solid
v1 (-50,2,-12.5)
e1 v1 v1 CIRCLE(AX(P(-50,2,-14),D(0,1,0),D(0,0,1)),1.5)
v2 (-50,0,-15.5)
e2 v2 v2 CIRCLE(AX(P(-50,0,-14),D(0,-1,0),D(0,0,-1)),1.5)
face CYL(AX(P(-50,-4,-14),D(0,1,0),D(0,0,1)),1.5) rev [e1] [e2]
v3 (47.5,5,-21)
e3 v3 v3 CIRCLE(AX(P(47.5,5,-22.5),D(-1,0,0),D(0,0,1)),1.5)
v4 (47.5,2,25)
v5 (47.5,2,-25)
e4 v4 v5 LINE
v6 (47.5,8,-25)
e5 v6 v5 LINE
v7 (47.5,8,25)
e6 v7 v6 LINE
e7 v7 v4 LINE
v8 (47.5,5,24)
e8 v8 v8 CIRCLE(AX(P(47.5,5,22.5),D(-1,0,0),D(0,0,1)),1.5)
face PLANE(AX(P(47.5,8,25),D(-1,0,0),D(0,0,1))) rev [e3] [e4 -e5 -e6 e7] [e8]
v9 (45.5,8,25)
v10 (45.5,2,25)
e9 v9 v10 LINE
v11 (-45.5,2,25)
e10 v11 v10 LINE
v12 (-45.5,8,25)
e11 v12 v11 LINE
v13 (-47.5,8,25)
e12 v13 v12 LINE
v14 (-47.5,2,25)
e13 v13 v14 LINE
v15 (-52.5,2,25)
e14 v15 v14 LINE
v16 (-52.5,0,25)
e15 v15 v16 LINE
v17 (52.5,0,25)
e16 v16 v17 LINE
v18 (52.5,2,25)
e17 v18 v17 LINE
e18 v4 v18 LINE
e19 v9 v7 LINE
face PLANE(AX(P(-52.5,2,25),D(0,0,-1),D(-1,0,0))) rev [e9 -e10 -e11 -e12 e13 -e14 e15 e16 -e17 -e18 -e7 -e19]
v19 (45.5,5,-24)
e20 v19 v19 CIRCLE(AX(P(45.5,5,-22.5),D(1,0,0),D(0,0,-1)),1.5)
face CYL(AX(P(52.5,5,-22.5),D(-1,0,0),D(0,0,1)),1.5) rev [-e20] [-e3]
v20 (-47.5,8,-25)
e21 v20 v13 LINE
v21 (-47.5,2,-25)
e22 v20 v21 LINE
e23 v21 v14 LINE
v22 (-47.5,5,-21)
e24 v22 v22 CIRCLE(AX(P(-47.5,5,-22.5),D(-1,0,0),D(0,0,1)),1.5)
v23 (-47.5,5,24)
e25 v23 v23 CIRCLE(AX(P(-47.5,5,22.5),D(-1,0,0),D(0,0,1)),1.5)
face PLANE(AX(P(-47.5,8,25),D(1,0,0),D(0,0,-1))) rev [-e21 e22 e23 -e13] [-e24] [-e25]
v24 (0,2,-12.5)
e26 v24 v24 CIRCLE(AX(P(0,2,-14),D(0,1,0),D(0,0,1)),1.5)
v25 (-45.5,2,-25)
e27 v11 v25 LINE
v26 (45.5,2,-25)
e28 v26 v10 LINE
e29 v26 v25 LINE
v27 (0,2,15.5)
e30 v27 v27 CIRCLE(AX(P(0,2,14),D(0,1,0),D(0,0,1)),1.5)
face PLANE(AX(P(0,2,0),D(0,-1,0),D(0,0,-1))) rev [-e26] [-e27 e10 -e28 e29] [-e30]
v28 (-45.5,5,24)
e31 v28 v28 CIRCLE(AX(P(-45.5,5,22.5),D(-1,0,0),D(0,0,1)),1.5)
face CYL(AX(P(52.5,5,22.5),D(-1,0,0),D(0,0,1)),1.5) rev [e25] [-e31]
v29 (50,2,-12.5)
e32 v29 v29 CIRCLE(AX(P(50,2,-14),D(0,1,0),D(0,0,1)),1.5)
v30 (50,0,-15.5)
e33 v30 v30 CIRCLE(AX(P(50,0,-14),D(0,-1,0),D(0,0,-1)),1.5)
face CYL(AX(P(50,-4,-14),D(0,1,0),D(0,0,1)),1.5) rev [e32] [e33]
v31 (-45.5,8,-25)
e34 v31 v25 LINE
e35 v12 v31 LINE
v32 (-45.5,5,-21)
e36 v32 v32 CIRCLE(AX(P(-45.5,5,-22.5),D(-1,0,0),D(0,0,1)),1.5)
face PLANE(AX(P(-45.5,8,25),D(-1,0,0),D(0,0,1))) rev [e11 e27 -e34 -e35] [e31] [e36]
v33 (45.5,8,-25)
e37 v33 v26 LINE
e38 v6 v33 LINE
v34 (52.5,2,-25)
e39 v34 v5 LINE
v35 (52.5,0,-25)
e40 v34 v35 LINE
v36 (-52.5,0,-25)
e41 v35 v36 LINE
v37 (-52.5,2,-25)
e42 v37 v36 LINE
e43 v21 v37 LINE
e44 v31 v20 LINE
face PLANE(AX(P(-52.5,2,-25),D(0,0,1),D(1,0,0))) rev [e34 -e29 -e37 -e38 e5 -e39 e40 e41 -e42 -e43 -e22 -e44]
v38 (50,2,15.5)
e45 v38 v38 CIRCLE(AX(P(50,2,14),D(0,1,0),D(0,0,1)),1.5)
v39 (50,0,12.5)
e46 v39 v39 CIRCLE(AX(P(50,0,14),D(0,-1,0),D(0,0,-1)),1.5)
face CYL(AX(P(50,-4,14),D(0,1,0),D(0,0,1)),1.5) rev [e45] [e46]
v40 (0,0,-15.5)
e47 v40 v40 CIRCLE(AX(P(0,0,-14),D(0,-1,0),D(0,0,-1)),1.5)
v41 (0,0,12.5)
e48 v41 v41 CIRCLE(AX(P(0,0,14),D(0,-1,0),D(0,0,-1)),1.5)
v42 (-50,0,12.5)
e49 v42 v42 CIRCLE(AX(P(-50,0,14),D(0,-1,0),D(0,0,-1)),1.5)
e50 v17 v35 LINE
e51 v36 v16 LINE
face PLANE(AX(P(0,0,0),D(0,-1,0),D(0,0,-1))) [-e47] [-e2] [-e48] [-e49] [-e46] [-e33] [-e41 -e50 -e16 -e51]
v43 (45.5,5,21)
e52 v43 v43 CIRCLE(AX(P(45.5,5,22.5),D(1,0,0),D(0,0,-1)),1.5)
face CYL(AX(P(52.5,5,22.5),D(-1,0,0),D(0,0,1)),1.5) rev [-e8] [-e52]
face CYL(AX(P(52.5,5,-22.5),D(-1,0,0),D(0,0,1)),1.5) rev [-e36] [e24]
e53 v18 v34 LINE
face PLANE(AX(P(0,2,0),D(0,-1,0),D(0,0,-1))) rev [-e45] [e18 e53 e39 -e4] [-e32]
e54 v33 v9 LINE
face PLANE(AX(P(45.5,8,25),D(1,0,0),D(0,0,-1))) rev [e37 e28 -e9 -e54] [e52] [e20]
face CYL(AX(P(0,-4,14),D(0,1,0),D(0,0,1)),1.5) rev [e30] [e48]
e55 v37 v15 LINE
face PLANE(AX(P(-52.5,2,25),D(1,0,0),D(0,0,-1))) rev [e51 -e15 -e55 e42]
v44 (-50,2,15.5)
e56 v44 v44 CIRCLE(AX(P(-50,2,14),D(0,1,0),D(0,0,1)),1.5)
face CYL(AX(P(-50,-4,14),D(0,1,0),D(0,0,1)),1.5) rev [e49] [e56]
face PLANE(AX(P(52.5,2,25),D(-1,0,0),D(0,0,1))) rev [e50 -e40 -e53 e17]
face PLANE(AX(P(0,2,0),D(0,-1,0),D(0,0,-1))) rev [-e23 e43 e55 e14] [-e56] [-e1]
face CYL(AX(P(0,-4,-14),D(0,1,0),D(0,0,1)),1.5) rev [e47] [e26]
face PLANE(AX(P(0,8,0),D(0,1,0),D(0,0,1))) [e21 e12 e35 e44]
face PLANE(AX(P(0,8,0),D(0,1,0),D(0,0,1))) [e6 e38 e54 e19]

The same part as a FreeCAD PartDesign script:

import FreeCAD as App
import Part
import Sketcher
Q = App.Units.Quantity


def add_polygon(sketch, points):
    """Adds a closed chain of lines whose ends are joined by coincident constraints."""
    first, n = sketch.GeometryCount, len(points)
    for a, b in zip(points, points[1:] + points[:1]):
        sketch.addGeometry(Part.LineSegment(App.Vector(*a, 0), App.Vector(*b, 0)), False)
    for i in range(n):
        sketch.addConstraint(Sketcher.Constraint("Coincident", first + i, 2, first + (i + 1) % n, 1))

doc = App.newDocument("Part")
params = doc.addObject("Spreadsheet::Sheet", "Params")
for row, (alias, value) in enumerate([
    ("sketch1_width", "105 mm"),
    ("sketch1_height", "50 mm"),
    ("pad1_length", "2 mm"),
    ("sketch2_width", "2 mm"),
    ("sketch2_height", "50 mm"),
    ("pad2_length", "6 mm"),
    ("sketch3_diameter", "3 mm"),
    ("pocket1_length", "6 mm"),
    ("sketch4_diameter", "3 mm"),
    ("pocket2_length", "100 mm"),
], start=1):
    params.set(f"A{row}", alias)
    params.set(f"B{row}", "=" + value)
    params.setAlias(f"B{row}", alias)

body = doc.addObject("PartDesign::Body", "Body")

sketch1 = body.newObject("Sketcher::SketchObject", "Sketch")
sketch1.AttachmentSupport = (doc.getObject("XZ_Plane"), [""])
sketch1.MapMode = "FlatFace"
add_polygon(sketch1, [(-52.5, -25), (-52.5, 25), (52.5, 25), (52.5, -25)])
sketch1.addConstraint([
    Sketcher.Constraint("Vertical", 0),
    Sketcher.Constraint("Horizontal", 1),
    Sketcher.Constraint("Vertical", 2),
    Sketcher.Constraint("Horizontal", 3),
    Sketcher.Constraint("Symmetric", 0, 2, 2, 2, -1, 1),
    Sketcher.Constraint("DistanceX", 1, 1, 1, 2, Q("105 mm")),
    Sketcher.Constraint("DistanceY", 0, 1, 0, 2, Q("50 mm")),
])
sketch1.setExpression("Constraints[9]", "Params.sketch1_width")
sketch1.setExpression("Constraints[10]", "Params.sketch1_height")
pad1 = body.newObject("PartDesign::Pad", "Pad")
pad1.Profile = sketch1
pad1.setExpression("Length", "Params.pad1_length")
pad1.Reversed = True

sketch2 = body.newObject("Sketcher::SketchObject", "Sketch001")
sketch2.AttachmentSupport = (doc.getObject("XZ_Plane"), [""])
sketch2.MapMode = "FlatFace"
sketch2.AttachmentOffset = App.Placement(App.Vector(0, 0, -2), App.Rotation())
add_polygon(sketch2, [(-47.5, -25), (-47.5, 25), (-45.5, 25), (-45.5, -25)])
add_polygon(sketch2, [(45.5, -25), (45.5, 25), (47.5, 25), (47.5, -25)])
sketch2.addConstraint([
    Sketcher.Constraint("Vertical", 0),
    Sketcher.Constraint("Horizontal", 1),
    Sketcher.Constraint("Vertical", 2),
    Sketcher.Constraint("Horizontal", 3),
    Sketcher.Constraint("Vertical", 4),
    Sketcher.Constraint("Horizontal", 5),
    Sketcher.Constraint("Vertical", 6),
    Sketcher.Constraint("Horizontal", 7),
    Sketcher.Constraint("Symmetric", 2, 2, 4, 2, -1, 1),
    Sketcher.Constraint("Symmetric", 0, 2, 6, 2, -1, 1),
    Sketcher.Constraint("Horizontal", 1, 2, 4, 2),
    Sketcher.Constraint("DistanceX", 1, 1, 1, 2, Q("2 mm")),
    Sketcher.Constraint("DistanceY", 0, 1, 0, 2, Q("50 mm")),
    Sketcher.Constraint("DistanceX", 1, 2, 4, 2, Q("91 mm")),
])
sketch2.setExpression("Constraints[19]", "Params.sketch2_width")
sketch2.setExpression("Constraints[20]", "Params.sketch2_height")
pad2 = body.newObject("PartDesign::Pad", "Pad001")
pad2.Profile = sketch2
pad2.setExpression("Length", "Params.pad2_length")
pad2.Reversed = True

sketch3 = body.newObject("Sketcher::SketchObject", "Sketch002")
sketch3.AttachmentSupport = (doc.getObject("XZ_Plane"), [""])
sketch3.MapMode = "FlatFace"
sketch3.AttachmentOffset = App.Placement(App.Vector(0, 0, -2), App.Rotation())
sketch3.addGeometry([
    Part.Circle(App.Vector(-50, -14, 0), App.Vector(0, 0, 1), 1.5),
    Part.Circle(App.Vector(-50, 14, 0), App.Vector(0, 0, 1), 1.5),
    Part.Circle(App.Vector(50, -14, 0), App.Vector(0, 0, 1), 1.5),
    Part.Circle(App.Vector(50, 14, 0), App.Vector(0, 0, 1), 1.5),
    Part.Circle(App.Vector(0, -14, 0), App.Vector(0, 0, 1), 1.5),
    Part.Circle(App.Vector(0, 14, 0), App.Vector(0, 0, 1), 1.5),
], False)
sketch3.addConstraint([
    Sketcher.Constraint("Equal", 0, 1),
    Sketcher.Constraint("Equal", 1, 2),
    Sketcher.Constraint("Equal", 2, 3),
    Sketcher.Constraint("Equal", 3, 4),
    Sketcher.Constraint("Equal", 4, 5),
    Sketcher.Constraint("Symmetric", 1, 3, 2, 3, -1, 1),
    Sketcher.Constraint("Symmetric", 0, 3, 3, 3, -1, 1),
    Sketcher.Constraint("Symmetric", 4, 3, 5, 3, -1, 1),
    Sketcher.Constraint("Symmetric", 0, 3, 2, 3, -2),
    Sketcher.Constraint("PointOnObject", 4, 3, -2),
    Sketcher.Constraint("Horizontal", 2, 3, 4, 3),
    Sketcher.Constraint("Diameter", 0, Q("3 mm")),
    Sketcher.Constraint("DistanceX", 0, 3, -1, 1, Q("50 mm")),
    Sketcher.Constraint("DistanceY", 0, 3, -1, 1, Q("14 mm")),
])
sketch3.setExpression("Constraints[11]", "Params.sketch3_diameter")
pocket1 = body.newObject("PartDesign::Pocket", "Pocket")
pocket1.Profile = sketch3
pocket1.setExpression("Length", "Params.pocket1_length")
pocket1.Reversed = True

sketch4 = body.newObject("Sketcher::SketchObject", "Sketch003")
sketch4.AttachmentSupport = (doc.getObject("YZ_Plane"), [""])
sketch4.MapMode = "FlatFace"
sketch4.AttachmentOffset = App.Placement(App.Vector(0, 0, -47.5), App.Rotation())
sketch4.addGeometry([
    Part.Circle(App.Vector(5, -22.5, 0), App.Vector(0, 0, 1), 1.5),
    Part.Circle(App.Vector(5, 22.5, 0), App.Vector(0, 0, 1), 1.5),
], False)
sketch4.addConstraint([
    Sketcher.Constraint("Equal", 0, 1),
    Sketcher.Constraint("Symmetric", 0, 3, 1, 3, -1),
    Sketcher.Constraint("Diameter", 0, Q("3 mm")),
    Sketcher.Constraint("DistanceX", -1, 1, 0, 3, Q("5 mm")),
    Sketcher.Constraint("DistanceY", 0, 3, 1, 3, Q("45 mm")),
])
sketch4.setExpression("Constraints[2]", "Params.sketch4_diameter")
pocket2 = body.newObject("PartDesign::Pocket", "Pocket001")
pocket2.Profile = sketch4
pocket2.setExpression("Length", "Params.pocket2_length")
pocket2.Reversed = True

doc.recompute()
